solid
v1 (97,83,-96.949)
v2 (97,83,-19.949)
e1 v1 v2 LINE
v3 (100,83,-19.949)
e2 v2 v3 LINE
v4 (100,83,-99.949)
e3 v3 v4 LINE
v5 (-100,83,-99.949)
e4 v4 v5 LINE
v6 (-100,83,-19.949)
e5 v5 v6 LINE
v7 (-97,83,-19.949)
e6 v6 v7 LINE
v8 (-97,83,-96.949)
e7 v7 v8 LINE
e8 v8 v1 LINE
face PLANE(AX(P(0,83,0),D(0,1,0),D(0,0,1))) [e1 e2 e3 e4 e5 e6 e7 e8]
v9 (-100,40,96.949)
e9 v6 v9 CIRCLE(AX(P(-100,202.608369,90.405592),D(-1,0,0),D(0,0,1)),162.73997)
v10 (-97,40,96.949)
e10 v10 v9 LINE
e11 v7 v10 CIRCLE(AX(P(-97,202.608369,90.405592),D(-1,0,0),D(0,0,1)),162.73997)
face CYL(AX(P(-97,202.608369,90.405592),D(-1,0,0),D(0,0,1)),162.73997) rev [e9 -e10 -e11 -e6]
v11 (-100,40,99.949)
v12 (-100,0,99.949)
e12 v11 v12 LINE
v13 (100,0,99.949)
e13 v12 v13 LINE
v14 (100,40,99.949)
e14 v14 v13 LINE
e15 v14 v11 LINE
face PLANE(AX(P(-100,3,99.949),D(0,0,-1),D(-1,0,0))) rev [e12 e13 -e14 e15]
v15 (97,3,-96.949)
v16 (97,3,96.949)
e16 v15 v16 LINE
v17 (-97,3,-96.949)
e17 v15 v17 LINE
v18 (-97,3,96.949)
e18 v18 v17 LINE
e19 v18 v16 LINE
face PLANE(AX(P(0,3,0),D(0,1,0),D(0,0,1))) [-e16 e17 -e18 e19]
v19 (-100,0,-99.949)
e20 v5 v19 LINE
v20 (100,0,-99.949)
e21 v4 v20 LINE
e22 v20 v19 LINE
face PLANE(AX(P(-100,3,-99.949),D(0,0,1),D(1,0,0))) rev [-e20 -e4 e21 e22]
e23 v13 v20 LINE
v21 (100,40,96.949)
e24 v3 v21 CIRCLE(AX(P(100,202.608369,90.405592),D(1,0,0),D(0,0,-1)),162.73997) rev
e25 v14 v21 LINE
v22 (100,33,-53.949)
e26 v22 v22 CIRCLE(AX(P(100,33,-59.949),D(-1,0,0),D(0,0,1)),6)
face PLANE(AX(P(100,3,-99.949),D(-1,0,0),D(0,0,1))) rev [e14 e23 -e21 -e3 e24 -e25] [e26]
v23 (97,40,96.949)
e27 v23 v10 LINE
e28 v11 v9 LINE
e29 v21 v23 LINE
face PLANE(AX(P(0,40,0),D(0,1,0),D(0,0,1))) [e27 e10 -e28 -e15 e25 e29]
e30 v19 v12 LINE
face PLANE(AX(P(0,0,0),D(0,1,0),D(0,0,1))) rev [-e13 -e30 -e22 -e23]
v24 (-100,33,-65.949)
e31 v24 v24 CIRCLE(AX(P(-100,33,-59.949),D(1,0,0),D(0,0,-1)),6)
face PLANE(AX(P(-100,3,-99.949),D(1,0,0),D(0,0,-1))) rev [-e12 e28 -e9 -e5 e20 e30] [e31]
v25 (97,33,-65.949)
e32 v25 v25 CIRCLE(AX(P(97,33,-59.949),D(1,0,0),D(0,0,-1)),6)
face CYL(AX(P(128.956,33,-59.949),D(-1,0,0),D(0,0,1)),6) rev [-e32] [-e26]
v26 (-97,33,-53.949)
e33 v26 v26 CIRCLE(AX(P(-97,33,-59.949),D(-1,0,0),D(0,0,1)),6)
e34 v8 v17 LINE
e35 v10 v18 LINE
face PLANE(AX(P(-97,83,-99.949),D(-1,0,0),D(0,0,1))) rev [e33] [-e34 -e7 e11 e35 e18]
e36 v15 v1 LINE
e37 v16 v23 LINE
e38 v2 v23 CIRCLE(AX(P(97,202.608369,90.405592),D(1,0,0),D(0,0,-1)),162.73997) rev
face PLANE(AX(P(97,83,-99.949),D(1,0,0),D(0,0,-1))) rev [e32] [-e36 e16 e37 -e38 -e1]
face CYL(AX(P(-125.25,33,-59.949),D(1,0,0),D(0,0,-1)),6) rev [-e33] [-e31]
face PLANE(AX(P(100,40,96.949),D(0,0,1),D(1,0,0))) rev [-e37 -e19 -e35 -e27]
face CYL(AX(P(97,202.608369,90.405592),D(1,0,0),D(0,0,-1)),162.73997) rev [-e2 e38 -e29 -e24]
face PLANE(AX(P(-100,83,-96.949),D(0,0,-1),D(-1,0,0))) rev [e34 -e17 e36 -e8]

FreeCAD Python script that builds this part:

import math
import FreeCAD as App
import Part
import Sketcher
Q = App.Units.Quantity


def add_polygon(sketch, points):
    """Adds a closed chain of lines whose ends are joined by coincident constraints."""
    first, n = sketch.GeometryCount, len(points)
    for a, b in zip(points, points[1:] + points[:1]):
        sketch.addGeometry(Part.LineSegment(App.Vector(*a, 0), App.Vector(*b, 0)), False)
    for i in range(n):
        sketch.addConstraint(Sketcher.Constraint("Coincident", first + i, 2, first + (i + 1) % n, 1))

doc = App.newDocument("Part")
body = doc.addObject("PartDesign::Body", "Body")

sketch1 = doc.addObject("Sketcher::SketchObject", "Sketch")
body.addObject(sketch1)
sketch1.AttachmentSupport = (doc.XZ_Plane, [""])
sketch1.MapMode = "FlatFace"
add_polygon(sketch1, [(-100, -99.949), (-100, 99.949), (100, 99.949), (100, -99.949)])
sketch1.addConstraint(Sketcher.Constraint("Vertical", 0))
sketch1.addConstraint(Sketcher.Constraint("Horizontal", 1))
sketch1.addConstraint(Sketcher.Constraint("Vertical", 2))
sketch1.addConstraint(Sketcher.Constraint("Horizontal", 3))
sketch1.addConstraint(Sketcher.Constraint("Symmetric", 0, 2, 2, 2, -1, 1))
sketch1.addConstraint(Sketcher.Constraint("DistanceX", 1, 1, 1, 2, Q("200 mm")))
sketch1.addConstraint(Sketcher.Constraint("DistanceY", 0, 1, 0, 2, Q("199.898 mm")))
pad1 = doc.addObject("PartDesign::Pad", "Pad")
body.addObject(pad1)
pad1.Profile = sketch1
pad1.Length = 3
pad1.Reversed = True

sketch2 = doc.addObject("Sketcher::SketchObject", "Sketch001")
body.addObject(sketch2)
sketch2.AttachmentSupport = (doc.XZ_Plane, [""])
sketch2.MapMode = "FlatFace"
sketch2.AttachmentOffset = App.Placement(App.Vector(0, 0, -3), App.Rotation())
add_polygon(sketch2, [(-100, -99.949), (-100, -19.949), (-97, -19.949), (-97, -99.949)])
sketch2.addConstraint(Sketcher.Constraint("Vertical", 0))
sketch2.addConstraint(Sketcher.Constraint("Horizontal", 1))
sketch2.addConstraint(Sketcher.Constraint("Vertical", 2))
sketch2.addConstraint(Sketcher.Constraint("Horizontal", 3))
sketch2.addConstraint(Sketcher.Constraint("DistanceX", 1, 1, 1, 2, Q("3 mm")))
sketch2.addConstraint(Sketcher.Constraint("DistanceY", 0, 1, 0, 2, Q("80 mm")))
sketch2.addConstraint(Sketcher.Constraint("DistanceX", 0, 2, -1, 1, Q("100 mm")))
sketch2.addConstraint(Sketcher.Constraint("DistanceY", 0, 2, -1, 1, Q("19.949 mm")))
pad2 = doc.addObject("PartDesign::Pad", "Pad001")
body.addObject(pad2)
pad2.Profile = sketch2
pad2.Length = 80
pad2.Reversed = True

sketch3 = doc.addObject("Sketcher::SketchObject", "Sketch002")
body.addObject(sketch3)
sketch3.AttachmentSupport = (doc.XZ_Plane, [""])
sketch3.MapMode = "FlatFace"
sketch3.AttachmentOffset = App.Placement(App.Vector(0, 0, -3), App.Rotation())
add_polygon(sketch3, [(97, -99.949), (97, -19.949), (100, -19.949), (100, -99.949)])
sketch3.addConstraint(Sketcher.Constraint("Vertical", 0))
sketch3.addConstraint(Sketcher.Constraint("Horizontal", 1))
sketch3.addConstraint(Sketcher.Constraint("Vertical", 2))
sketch3.addConstraint(Sketcher.Constraint("Horizontal", 3))
sketch3.addConstraint(Sketcher.Constraint("DistanceX", 1, 1, 1, 2, Q("3 mm")))
sketch3.addConstraint(Sketcher.Constraint("DistanceY", 0, 1, 0, 2, Q("80 mm")))
sketch3.addConstraint(Sketcher.Constraint("DistanceX", -1, 1, 0, 2, Q("97 mm")))
sketch3.addConstraint(Sketcher.Constraint("DistanceY", 0, 2, -1, 1, Q("19.949 mm")))
pad3 = doc.addObject("PartDesign::Pad", "Pad002")
body.addObject(pad3)
pad3.Profile = sketch3
pad3.Length = 80
pad3.Reversed = True

sketch4 = doc.addObject("Sketcher::SketchObject", "Sketch003")
body.addObject(sketch4)
sketch4.AttachmentSupport = (doc.XZ_Plane, [""])
sketch4.MapMode = "FlatFace"
add_polygon(sketch4, [(-100, 96.949), (-100, 99.949), (100, 99.949), (100, 96.949)])
sketch4.addConstraint(Sketcher.Constraint("Vertical", 0))
sketch4.addConstraint(Sketcher.Constraint("Horizontal", 1))
sketch4.addConstraint(Sketcher.Constraint("Vertical", 2))
sketch4.addConstraint(Sketcher.Constraint("Horizontal", 3))
sketch4.addConstraint(Sketcher.Constraint("DistanceX", 1, 1, 1, 2, Q("200 mm")))
sketch4.addConstraint(Sketcher.Constraint("DistanceY", 0, 1, 0, 2, Q("3 mm")))
sketch4.addConstraint(Sketcher.Constraint("DistanceX", 0, 2, -1, 1, Q("100 mm")))
sketch4.addConstraint(Sketcher.Constraint("DistanceY", -1, 1, 0, 2, Q("99.949 mm")))
pad4 = doc.addObject("PartDesign::Pad", "Pad003")
body.addObject(pad4)
pad4.Profile = sketch4
pad4.Length = 40
pad4.Reversed = True

sketch5 = doc.addObject("Sketcher::SketchObject", "Sketch004")
body.addObject(sketch5)
sketch5.AttachmentSupport = (doc.YZ_Plane, [""])
sketch5.MapMode = "FlatFace"
sketch5.AttachmentOffset = App.Placement(App.Vector(0, 0, -100), App.Rotation())
sketch5.addGeometry(Part.Circle(App.Vector(33, -59.949, 0), App.Vector(0, 0, 1), 6), False)
sketch5.addConstraint(Sketcher.Constraint("Diameter", 0, Q("12 mm")))
sketch5.addConstraint(Sketcher.Constraint("DistanceX", -1, 1, 0, 3, Q("33 mm")))
sketch5.addConstraint(Sketcher.Constraint("DistanceY", 0, 3, -1, 1, Q("59.949 mm")))
pocket1 = doc.addObject("PartDesign::Pocket", "Pocket")
body.addObject(pocket1)
pocket1.Profile = sketch5
pocket1.Length = 228.956
pocket1.Reversed = True

sketch6 = doc.addObject("Sketcher::SketchObject", "Sketch005")
body.addObject(sketch6)
sketch6.AttachmentSupport = (doc.YZ_Plane, [""])
sketch6.MapMode = "FlatFace"
sketch6.AttachmentOffset = App.Placement(App.Vector(0, 0, -100), App.Rotation())
sketch6.addGeometry(Part.LineSegment(App.Vector(0, 99.949, 0), App.Vector(40, 99.949, 0)), False)
sketch6.addGeometry(Part.LineSegment(App.Vector(40, 99.949, 0), App.Vector(40, 96.949, 0)), False)
sketch6.addGeometry(Part.ArcOfCircle(Part.Circle(App.Vector(202.608369, 90.405592, 0), App.Vector(0, 0, 1), 162.73997), math.radians(177.695644), math.radians(222.695644)), False)
sketch6.addGeometry(Part.LineSegment(App.Vector(83, -19.949, 0), App.Vector(83, -99.949, 0)), False)
sketch6.addGeometry(Part.LineSegment(App.Vector(83, -99.949, 0), App.Vector(0, -99.949, 0)), False)
sketch6.addGeometry(Part.LineSegment(App.Vector(0, -99.949, 0), App.Vector(0, 99.949, 0)), False)
sketch6.addConstraint(Sketcher.Constraint("Coincident", 0, 2, 1, 1))
sketch6.addConstraint(Sketcher.Constraint("Coincident", 1, 2, 2, 1))
sketch6.addConstraint(Sketcher.Constraint("Coincident", 2, 2, 3, 1))
sketch6.addConstraint(Sketcher.Constraint("Coincident", 3, 2, 4, 1))
sketch6.addConstraint(Sketcher.Constraint("Coincident", 4, 2, 5, 1))
sketch6.addConstraint(Sketcher.Constraint("Coincident", 5, 2, 0, 1))
sketch6.addConstraint(Sketcher.Constraint("Horizontal", 0))
sketch6.addConstraint(Sketcher.Constraint("Vertical", 1))
sketch6.addConstraint(Sketcher.Constraint("Vertical", 3))
sketch6.addConstraint(Sketcher.Constraint("Horizontal", 4))
sketch6.addConstraint(Sketcher.Constraint("Vertical", 5))
sketch6.addConstraint(Sketcher.Constraint("Symmetric", 4, 2, 5, 2, -1, 1))
sketch6.addConstraint(Sketcher.Constraint("DistanceX", 0, 1, 0, 2, Q("40 mm")))
sketch6.addConstraint(Sketcher.Constraint("DistanceX", 4, 2, 4, 1, Q("83 mm")))
sketch6.addConstraint(Sketcher.Constraint("DistanceY", 1, 2, 1, 1, Q("3 mm")))
sketch6.addConstraint(Sketcher.Constraint("DistanceY", 3, 2, 3, 1, Q("80 mm")))
sketch6.addConstraint(Sketcher.Constraint("DistanceY", 5, 1, 5, 2, Q("199.898 mm")))
sketch6.addConstraint(Sketcher.Constraint("Radius", 2, Q("162.73997 mm")))
pad5 = doc.addObject("PartDesign::Pad", "Pad004")
body.addObject(pad5)
pad5.Profile = sketch6
pad5.Length = 3

sketch7 = doc.addObject("Sketcher::SketchObject", "Sketch006")
body.addObject(sketch7)
sketch7.AttachmentSupport = (doc.YZ_Plane, [""])
sketch7.MapMode = "FlatFace"
sketch7.AttachmentOffset = App.Placement(App.Vector(0, 0, 100), App.Rotation())
sketch7.addGeometry(Part.ArcOfCircle(Part.Circle(App.Vector(202.608369, 90.405592, 0), App.Vector(0, 0, 1), 162.73997), math.radians(177.695644), math.radians(222.695644)), False)
sketch7.addGeometry(Part.LineSegment(App.Vector(40, 96.949, 0), App.Vector(3, 96.949, 0)), False)
sketch7.addGeometry(Part.LineSegment(App.Vector(3, 96.949, 0), App.Vector(3, -19.949, 0)), False)
sketch7.addGeometry(Part.LineSegment(App.Vector(3, -19.949, 0), App.Vector(83, -19.949, 0)), False)
sketch7.addConstraint(Sketcher.Constraint("Coincident", 0, 1, 1, 1))
sketch7.addConstraint(Sketcher.Constraint("Coincident", 1, 2, 2, 1))
sketch7.addConstraint(Sketcher.Constraint("Coincident", 2, 2, 3, 1))
sketch7.addConstraint(Sketcher.Constraint("Coincident", 3, 2, 0, 2))
sketch7.addConstraint(Sketcher.Constraint("Horizontal", 1))
sketch7.addConstraint(Sketcher.Constraint("Vertical", 2))
sketch7.addConstraint(Sketcher.Constraint("Horizontal", 3))
sketch7.addConstraint(Sketcher.Constraint("DistanceX", 1, 2, 1, 1, Q("37 mm")))
sketch7.addConstraint(Sketcher.Constraint("DistanceX", 3, 1, 3, 2, Q("80 mm")))
sketch7.addConstraint(Sketcher.Constraint("DistanceX", -1, 1, 0, 1, Q("40 mm")))
sketch7.addConstraint(Sketcher.Constraint("DistanceY", 2, 2, 2, 1, Q("116.898 mm")))
sketch7.addConstraint(Sketcher.Constraint("Radius", 0, Q("162.73997 mm")))
sketch7.addConstraint(Sketcher.Constraint("DistanceY", -1, 1, 0, 1, Q("96.949 mm")))
pad6 = doc.addObject("PartDesign::Pad", "Pad005")
body.addObject(pad6)
pad6.Profile = sketch7
pad6.Length = 3
pad6.Reversed = True

sketch8 = doc.addObject("Sketcher::SketchObject", "Sketch007")
body.addObject(sketch8)
sketch8.AttachmentSupport = (doc.YZ_Plane, [""])
sketch8.MapMode = "FlatFace"
sketch8.AttachmentOffset = App.Placement(App.Vector(0, 0, 100), App.Rotation())
sketch8.addGeometry(Part.Circle(App.Vector(33, -59.949, 0), App.Vector(0, 0, 1), 6), False)
sketch8.addConstraint(Sketcher.Constraint("Diameter", 0, Q("12 mm")))
sketch8.addConstraint(Sketcher.Constraint("DistanceX", -1, 1, 0, 3, Q("33 mm")))
sketch8.addConstraint(Sketcher.Constraint("DistanceY", 0, 3, -1, 1, Q("59.949 mm")))
pocket2 = doc.addObject("PartDesign::Pocket", "Pocket001")
body.addObject(pocket2)
pocket2.Profile = sketch8
pocket2.Length = 225.25

sketch9 = doc.addObject("Sketcher::SketchObject", "Sketch008")
body.addObject(sketch9)
sketch9.AttachmentSupport = (doc.XZ_Plane, [""])
sketch9.MapMode = "FlatFace"
add_polygon(sketch9, [(-100, -99.949), (-100, -96.949), (100, -96.949), (100, -99.949)])
sketch9.addConstraint(Sketcher.Constraint("Vertical", 0))
sketch9.addConstraint(Sketcher.Constraint("Horizontal", 1))
sketch9.addConstraint(Sketcher.Constraint("Vertical", 2))
sketch9.addConstraint(Sketcher.Constraint("Horizontal", 3))
sketch9.addConstraint(Sketcher.Constraint("DistanceX", 1, 1, 1, 2, Q("200 mm")))
sketch9.addConstraint(Sketcher.Constraint("DistanceY", 0, 1, 0, 2, Q("3 mm")))
sketch9.addConstraint(Sketcher.Constraint("DistanceX", 0, 2, -1, 1, Q("100 mm")))
sketch9.addConstraint(Sketcher.Constraint("DistanceY", 0, 2, -1, 1, Q("96.949 mm")))
pad7 = doc.addObject("PartDesign::Pad", "Pad006")
body.addObject(pad7)
pad7.Profile = sketch9
pad7.Length = 83
pad7.Reversed = True

doc.recompute()
